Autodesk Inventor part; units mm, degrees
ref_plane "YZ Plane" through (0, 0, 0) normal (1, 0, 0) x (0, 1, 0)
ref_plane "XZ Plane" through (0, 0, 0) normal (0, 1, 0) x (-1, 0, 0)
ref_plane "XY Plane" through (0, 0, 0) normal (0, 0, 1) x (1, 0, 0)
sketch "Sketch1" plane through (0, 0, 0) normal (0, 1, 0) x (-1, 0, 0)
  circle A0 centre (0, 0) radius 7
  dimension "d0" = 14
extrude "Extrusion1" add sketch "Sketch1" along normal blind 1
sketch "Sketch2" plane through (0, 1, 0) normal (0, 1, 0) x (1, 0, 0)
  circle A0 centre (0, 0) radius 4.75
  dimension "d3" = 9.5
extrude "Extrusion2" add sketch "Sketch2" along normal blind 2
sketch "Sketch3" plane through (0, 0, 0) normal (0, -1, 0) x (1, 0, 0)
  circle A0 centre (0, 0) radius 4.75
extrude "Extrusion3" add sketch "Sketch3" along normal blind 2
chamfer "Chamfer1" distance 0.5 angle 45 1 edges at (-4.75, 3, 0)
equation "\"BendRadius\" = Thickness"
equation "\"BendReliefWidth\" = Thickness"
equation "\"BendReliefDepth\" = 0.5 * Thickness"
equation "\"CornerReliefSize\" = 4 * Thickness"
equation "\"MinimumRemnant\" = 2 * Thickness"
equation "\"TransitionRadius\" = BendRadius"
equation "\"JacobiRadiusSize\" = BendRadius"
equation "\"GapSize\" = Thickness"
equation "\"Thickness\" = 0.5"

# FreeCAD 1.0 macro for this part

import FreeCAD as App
import Part
import Sketcher

V = App.Vector


def edges_at(feature, points):
    """Names of the edges that pass closest to the given points."""
    edges = feature.Shape.Edges
    near = lambda p: min(range(len(edges)), key=lambda i: edges[i].distToShape(Part.Vertex(*p))[0])
    return sorted({f"Edge{near(p) + 1}" for p in points})

doc = App.newDocument("Part")
body = doc.addObject("PartDesign::Body", "Body")

sketch1 = body.newObject("Sketcher::SketchObject", "Sketch")
sketch1.AttachmentSupport = (doc.getObject("XZ_Plane"), [""])
sketch1.MapMode = "FlatFace"
sketch1.addGeometry(Part.Circle(V(0, 0, 0), V(0, 0, 1), 7), False)
sketch1.addConstraint([
    Sketcher.Constraint("Coincident", 0, 3, -1, 1),
    Sketcher.Constraint("Diameter", 0, 14.0),
])
pad1 = body.newObject("PartDesign::Pad", "Pad")
pad1.Profile = sketch1
pad1.Length = 1
pad1.Reversed = True

sketch2 = body.newObject("Sketcher::SketchObject", "Sketch001")
sketch2.AttachmentSupport = (doc.getObject("XZ_Plane"), [""])
sketch2.MapMode = "FlatFace"
sketch2.AttachmentOffset = App.Placement(V(0, 0, -1), App.Rotation())
sketch2.addGeometry(Part.Circle(V(0, 0, 0), V(0, 0, 1), 4.75), False)
sketch2.addConstraint([
    Sketcher.Constraint("Coincident", 0, 3, -1, 1),
    Sketcher.Constraint("Diameter", 0, 9.5),
])
pad2 = body.newObject("PartDesign::Pad", "Pad001")
pad2.Profile = sketch2
pad2.Length = 2
pad2.Reversed = True

sketch3 = body.newObject("Sketcher::SketchObject", "Sketch002")
sketch3.AttachmentSupport = (doc.getObject("XZ_Plane"), [""])
sketch3.MapMode = "FlatFace"
sketch3.addGeometry(Part.Circle(V(0, 0, 0), V(0, 0, 1), 4.75), False)
sketch3.addConstraint([
    Sketcher.Constraint("Coincident", 0, 3, -1, 1),
    Sketcher.Constraint("Diameter", 0, 9.5),
])
pad3 = body.newObject("PartDesign::Pad", "Pad002")
pad3.Profile = sketch3
pad3.Length = 2
doc.recompute()

chamfer = body.newObject("PartDesign::Chamfer", "Chamfer")
chamfer.Base = (pad3, edges_at(pad3, [(-4.75, 3, 0)]))
chamfer.Size = 0.5

doc.recompute()
